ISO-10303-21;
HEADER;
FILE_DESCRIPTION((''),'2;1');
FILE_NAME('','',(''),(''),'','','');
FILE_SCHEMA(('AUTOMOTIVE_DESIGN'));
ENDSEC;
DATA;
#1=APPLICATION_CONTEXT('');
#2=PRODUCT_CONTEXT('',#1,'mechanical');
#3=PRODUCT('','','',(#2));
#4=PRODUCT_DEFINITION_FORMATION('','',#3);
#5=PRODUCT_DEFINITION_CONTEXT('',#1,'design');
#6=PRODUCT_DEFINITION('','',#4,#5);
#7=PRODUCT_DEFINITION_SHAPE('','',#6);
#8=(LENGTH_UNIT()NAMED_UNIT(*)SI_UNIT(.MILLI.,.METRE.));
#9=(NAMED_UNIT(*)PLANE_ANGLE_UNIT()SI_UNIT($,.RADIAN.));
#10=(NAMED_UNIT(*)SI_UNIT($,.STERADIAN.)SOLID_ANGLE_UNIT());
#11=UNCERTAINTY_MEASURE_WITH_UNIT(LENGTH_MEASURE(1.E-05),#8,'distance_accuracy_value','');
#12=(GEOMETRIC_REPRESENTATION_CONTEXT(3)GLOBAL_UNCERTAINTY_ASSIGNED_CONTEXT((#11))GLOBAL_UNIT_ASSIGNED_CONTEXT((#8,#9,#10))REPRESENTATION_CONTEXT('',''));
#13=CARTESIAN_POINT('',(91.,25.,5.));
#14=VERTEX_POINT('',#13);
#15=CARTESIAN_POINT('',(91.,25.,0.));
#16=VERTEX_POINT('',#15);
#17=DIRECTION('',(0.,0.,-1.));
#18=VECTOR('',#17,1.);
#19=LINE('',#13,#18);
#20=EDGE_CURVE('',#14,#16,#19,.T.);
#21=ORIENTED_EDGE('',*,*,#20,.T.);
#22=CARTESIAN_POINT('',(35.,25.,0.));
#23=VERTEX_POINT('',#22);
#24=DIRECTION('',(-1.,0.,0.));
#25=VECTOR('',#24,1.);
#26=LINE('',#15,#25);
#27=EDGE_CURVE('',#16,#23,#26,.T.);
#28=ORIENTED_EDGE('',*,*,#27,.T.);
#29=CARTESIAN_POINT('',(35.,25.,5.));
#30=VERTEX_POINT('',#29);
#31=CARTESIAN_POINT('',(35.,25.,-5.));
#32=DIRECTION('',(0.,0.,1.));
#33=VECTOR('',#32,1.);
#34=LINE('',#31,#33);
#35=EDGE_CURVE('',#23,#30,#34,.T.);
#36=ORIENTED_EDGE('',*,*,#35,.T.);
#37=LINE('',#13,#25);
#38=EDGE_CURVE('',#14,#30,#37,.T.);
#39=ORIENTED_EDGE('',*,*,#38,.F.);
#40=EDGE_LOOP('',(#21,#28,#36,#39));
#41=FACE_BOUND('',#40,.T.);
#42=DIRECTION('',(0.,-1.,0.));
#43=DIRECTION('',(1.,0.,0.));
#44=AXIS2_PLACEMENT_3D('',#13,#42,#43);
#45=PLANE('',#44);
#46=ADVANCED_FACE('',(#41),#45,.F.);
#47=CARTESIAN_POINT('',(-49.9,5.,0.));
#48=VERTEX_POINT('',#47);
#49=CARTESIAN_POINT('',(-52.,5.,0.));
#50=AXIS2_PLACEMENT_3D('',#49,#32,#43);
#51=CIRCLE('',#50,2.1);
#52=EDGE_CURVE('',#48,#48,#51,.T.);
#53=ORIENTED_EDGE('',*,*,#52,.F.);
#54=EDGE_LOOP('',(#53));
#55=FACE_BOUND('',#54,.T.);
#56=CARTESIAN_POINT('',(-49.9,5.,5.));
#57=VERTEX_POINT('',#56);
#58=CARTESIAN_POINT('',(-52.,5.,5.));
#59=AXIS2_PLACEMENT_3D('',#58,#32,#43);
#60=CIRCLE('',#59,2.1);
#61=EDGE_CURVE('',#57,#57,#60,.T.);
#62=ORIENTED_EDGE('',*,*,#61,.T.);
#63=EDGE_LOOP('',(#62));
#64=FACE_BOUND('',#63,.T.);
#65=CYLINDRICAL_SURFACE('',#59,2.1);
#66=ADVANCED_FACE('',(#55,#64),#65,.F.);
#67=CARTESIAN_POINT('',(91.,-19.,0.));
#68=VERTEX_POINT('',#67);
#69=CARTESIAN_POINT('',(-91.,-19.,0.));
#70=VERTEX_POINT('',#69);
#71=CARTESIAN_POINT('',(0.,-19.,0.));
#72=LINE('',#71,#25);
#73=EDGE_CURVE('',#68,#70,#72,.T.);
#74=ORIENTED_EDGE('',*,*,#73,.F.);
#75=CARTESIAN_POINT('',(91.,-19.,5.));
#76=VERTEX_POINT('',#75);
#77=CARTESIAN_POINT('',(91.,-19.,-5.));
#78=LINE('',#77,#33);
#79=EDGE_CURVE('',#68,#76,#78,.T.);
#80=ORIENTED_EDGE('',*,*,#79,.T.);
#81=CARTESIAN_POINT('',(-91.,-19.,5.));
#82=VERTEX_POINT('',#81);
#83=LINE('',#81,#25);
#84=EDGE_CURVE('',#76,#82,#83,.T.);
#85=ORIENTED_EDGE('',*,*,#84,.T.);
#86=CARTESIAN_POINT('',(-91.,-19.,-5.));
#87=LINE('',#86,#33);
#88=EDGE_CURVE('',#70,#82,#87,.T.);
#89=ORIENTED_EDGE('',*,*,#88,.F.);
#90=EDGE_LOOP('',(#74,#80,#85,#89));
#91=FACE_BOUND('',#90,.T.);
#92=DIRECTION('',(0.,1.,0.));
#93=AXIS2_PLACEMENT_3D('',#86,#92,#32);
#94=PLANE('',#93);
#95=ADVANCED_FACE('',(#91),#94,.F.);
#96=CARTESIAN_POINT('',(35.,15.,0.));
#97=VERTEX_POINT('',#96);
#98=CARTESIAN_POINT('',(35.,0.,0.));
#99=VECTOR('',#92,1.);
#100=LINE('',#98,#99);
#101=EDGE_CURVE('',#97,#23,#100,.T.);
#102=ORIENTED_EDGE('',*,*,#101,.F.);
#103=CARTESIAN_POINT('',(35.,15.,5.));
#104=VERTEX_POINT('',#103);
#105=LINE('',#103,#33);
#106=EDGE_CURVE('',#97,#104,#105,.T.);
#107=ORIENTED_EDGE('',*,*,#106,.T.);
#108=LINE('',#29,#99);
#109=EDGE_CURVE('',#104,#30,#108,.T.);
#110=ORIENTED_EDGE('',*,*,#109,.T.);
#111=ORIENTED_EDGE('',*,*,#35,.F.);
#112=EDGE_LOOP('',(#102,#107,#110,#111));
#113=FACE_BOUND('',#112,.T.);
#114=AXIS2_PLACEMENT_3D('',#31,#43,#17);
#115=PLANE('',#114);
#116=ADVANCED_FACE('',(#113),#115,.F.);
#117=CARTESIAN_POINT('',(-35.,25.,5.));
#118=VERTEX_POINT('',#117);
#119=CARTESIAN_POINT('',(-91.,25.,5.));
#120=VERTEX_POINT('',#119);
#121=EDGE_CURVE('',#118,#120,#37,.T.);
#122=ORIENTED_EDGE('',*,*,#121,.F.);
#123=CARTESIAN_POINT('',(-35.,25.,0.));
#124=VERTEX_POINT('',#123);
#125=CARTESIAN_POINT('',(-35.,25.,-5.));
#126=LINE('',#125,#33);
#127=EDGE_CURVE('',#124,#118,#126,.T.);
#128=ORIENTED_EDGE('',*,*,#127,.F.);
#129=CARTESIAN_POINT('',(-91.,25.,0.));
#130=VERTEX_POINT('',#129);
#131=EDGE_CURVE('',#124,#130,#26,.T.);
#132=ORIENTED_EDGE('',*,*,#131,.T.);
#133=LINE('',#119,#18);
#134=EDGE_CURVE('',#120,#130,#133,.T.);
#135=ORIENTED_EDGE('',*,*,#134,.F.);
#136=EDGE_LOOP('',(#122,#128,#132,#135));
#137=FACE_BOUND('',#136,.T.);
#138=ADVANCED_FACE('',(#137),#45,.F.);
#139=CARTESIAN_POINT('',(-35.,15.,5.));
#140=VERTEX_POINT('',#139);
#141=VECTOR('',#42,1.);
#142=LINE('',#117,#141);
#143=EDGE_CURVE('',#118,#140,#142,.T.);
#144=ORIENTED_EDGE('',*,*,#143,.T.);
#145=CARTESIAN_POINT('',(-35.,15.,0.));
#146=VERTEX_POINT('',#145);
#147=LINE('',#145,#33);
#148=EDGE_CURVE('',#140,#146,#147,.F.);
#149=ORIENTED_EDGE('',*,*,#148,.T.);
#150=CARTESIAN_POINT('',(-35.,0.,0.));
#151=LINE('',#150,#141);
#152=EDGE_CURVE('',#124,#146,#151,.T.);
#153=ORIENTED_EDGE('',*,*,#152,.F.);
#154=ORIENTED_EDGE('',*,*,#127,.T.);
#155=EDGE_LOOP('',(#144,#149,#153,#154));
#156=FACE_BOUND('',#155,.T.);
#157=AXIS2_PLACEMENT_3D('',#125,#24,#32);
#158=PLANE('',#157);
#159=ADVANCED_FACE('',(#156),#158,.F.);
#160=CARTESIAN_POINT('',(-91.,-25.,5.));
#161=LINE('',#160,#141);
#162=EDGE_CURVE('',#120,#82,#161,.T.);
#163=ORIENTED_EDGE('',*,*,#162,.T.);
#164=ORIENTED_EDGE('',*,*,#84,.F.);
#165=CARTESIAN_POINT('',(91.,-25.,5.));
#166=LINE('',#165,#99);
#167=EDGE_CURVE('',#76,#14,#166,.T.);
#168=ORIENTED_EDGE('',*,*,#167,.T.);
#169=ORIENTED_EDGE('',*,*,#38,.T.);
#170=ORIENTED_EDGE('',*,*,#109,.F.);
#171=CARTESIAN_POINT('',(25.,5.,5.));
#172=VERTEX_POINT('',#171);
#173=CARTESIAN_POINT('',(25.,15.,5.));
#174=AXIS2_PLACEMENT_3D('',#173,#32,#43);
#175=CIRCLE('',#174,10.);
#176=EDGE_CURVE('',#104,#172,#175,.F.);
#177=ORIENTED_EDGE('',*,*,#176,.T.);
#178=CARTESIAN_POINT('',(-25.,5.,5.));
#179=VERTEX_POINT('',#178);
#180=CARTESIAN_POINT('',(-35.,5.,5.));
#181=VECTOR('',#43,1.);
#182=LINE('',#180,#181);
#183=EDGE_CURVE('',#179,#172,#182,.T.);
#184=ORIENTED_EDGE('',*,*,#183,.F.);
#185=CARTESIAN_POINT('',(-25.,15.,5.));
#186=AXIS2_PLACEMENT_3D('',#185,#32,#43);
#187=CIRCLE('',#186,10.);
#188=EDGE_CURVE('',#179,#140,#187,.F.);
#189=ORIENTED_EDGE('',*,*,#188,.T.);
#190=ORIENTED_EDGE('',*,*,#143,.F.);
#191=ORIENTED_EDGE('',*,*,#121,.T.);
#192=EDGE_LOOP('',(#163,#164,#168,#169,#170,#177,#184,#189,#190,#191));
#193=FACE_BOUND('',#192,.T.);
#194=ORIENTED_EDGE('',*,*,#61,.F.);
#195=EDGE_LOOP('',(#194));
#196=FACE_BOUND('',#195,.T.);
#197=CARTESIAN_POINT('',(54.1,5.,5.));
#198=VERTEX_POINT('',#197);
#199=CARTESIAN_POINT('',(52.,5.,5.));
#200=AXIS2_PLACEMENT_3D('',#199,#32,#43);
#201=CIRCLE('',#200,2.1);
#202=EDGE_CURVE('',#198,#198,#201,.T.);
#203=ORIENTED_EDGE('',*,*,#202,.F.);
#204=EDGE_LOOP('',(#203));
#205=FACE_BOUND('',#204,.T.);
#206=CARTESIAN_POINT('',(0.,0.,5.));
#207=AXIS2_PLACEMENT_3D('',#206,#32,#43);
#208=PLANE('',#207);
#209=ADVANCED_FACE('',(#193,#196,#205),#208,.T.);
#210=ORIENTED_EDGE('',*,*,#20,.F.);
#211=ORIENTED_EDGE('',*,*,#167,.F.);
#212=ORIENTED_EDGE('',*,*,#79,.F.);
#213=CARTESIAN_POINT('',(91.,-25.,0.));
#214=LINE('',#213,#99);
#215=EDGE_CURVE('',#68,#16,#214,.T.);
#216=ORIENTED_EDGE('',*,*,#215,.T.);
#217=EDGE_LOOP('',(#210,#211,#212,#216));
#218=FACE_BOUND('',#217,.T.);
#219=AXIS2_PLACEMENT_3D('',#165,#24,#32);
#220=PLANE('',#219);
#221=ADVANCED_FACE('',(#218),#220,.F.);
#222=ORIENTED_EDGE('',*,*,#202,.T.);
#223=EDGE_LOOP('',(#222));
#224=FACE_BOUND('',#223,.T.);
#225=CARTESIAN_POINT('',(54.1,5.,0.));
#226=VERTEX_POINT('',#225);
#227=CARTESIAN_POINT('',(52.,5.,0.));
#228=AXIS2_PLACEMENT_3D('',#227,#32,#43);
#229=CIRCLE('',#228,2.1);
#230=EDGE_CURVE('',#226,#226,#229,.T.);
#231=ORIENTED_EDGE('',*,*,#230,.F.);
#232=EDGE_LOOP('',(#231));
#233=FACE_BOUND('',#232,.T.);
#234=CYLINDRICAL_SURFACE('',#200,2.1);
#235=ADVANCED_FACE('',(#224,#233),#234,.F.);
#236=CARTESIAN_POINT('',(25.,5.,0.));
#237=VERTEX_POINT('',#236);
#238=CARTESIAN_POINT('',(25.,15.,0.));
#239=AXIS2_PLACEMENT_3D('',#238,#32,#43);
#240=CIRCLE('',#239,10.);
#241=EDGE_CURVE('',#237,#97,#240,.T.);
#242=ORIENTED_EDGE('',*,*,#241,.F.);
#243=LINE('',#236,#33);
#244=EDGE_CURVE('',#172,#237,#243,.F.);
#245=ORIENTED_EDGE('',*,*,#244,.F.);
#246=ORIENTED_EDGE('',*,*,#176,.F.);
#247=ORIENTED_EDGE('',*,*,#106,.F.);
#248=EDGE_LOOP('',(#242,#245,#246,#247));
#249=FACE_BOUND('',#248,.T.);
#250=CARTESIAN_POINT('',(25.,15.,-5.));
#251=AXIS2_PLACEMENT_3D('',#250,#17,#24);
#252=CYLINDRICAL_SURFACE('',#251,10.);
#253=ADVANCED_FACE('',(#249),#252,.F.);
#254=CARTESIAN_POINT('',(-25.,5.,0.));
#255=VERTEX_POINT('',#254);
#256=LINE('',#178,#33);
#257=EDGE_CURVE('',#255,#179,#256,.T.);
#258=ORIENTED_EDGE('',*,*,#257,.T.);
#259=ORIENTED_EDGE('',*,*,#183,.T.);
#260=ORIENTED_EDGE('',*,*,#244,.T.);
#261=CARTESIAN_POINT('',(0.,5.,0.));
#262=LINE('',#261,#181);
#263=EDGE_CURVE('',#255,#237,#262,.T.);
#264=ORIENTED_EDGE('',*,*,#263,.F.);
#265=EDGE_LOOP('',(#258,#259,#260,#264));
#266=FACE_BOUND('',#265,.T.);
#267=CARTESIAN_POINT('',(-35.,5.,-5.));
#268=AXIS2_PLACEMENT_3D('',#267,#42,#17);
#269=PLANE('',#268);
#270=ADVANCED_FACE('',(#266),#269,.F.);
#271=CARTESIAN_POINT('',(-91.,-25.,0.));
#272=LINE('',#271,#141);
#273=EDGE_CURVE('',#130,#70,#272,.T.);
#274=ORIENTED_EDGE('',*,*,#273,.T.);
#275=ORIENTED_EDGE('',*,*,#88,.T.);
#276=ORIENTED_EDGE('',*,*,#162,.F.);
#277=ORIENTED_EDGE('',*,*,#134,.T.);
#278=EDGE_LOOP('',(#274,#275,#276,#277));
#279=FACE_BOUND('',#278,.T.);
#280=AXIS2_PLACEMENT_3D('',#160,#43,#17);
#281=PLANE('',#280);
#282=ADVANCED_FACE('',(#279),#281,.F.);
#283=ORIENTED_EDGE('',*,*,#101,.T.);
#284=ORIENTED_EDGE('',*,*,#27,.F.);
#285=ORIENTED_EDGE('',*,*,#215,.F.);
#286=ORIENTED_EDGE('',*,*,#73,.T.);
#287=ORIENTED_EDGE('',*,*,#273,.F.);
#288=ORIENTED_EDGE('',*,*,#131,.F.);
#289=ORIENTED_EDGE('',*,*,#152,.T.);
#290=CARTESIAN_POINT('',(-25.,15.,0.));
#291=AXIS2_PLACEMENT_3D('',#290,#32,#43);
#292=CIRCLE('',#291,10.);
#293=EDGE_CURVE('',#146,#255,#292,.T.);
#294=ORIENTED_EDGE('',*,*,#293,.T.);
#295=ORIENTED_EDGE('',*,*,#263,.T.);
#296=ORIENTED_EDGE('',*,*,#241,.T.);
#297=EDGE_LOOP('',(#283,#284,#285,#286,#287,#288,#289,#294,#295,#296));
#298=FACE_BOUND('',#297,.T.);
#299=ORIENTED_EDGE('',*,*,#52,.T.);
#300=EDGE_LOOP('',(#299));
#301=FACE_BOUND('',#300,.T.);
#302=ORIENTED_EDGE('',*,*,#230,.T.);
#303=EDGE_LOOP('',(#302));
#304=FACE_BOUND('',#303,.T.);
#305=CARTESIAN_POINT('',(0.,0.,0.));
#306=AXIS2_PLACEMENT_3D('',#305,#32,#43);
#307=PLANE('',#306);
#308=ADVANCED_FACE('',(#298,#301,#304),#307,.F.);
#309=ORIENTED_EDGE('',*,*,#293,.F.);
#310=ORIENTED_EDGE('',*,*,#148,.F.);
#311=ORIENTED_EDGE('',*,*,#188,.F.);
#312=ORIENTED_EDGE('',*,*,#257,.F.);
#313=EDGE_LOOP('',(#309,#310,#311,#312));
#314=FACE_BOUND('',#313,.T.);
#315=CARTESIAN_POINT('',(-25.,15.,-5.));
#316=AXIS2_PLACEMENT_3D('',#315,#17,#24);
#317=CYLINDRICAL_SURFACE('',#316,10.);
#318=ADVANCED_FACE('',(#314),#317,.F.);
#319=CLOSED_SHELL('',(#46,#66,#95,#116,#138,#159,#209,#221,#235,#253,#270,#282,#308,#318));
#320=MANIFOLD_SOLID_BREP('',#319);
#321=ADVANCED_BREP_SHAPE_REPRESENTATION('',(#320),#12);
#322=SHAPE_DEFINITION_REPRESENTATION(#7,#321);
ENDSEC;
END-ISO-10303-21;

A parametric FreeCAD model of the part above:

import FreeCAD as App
import Part
import Sketcher

V = App.Vector
Q = App.Units.Quantity


def edges_at(feature, points):
    """Names of the edges that pass closest to the given points."""
    edges = feature.Shape.Edges
    near = lambda p: min(range(len(edges)), key=lambda i: edges[i].distToShape(Part.Vertex(*p))[0])
    return sorted({f"Edge{near(p) + 1}" for p in points})


def add_polygon(sketch, points):
    """Adds a closed chain of lines whose ends are joined by coincident constraints."""
    first, n = sketch.GeometryCount, len(points)
    for a, b in zip(points, points[1:] + points[:1]):
        sketch.addGeometry(Part.LineSegment(App.Vector(*a, 0), App.Vector(*b, 0)), False)
    for i in range(n):
        sketch.addConstraint(Sketcher.Constraint("Coincident", first + i, 2, first + (i + 1) % n, 1))

doc = App.newDocument("Part")
body = doc.addObject("PartDesign::Body", "Body")

# Sketch on XY plane
sketch1 = body.newObject("Sketcher::SketchObject", "Sketch")
sketch1.AttachmentSupport = (doc.getObject("XY_Plane"), [""])
sketch1.MapMode = "FlatFace"
add_polygon(sketch1, [(-91, 25), (-91, -25), (91, -25), (91, 25)])  # lines 0-3
sketch1.addConstraint([
    Sketcher.Constraint("Vertical", 0),
    Sketcher.Constraint("Horizontal", 1),
    Sketcher.Constraint("Vertical", 2),
    Sketcher.Constraint("Horizontal", 3),
    Sketcher.Constraint("Symmetric", 0, 2, 2, 2, -1, 1),
    Sketcher.Constraint("DistanceX", 1, 1, 1, 2, Q("182 mm")),
    Sketcher.Constraint("DistanceY", 0, 2, 0, 1, Q("50 mm")),
])
pad1 = body.newObject("PartDesign::Pad", "Pad")
pad1.Profile = sketch1
pad1.Length = 5

# Sketch on XY plane
sketch2 = body.newObject("Sketcher::SketchObject", "Sketch001")
sketch2.AttachmentSupport = (doc.getObject("XY_Plane"), [""])
sketch2.MapMode = "FlatFace"
sketch2.AttachmentOffset = App.Placement(V(0, 0, 5), App.Rotation())
sketch2.addGeometry([
    Part.Circle(V(52, 5, 0), V(0, 0, 1), 2.1),
    Part.Circle(V(-52, 5, 0), V(0, 0, 1), 2.1),
], False)
sketch2.addConstraint([
    Sketcher.Constraint("Equal", 0, 1),
    Sketcher.Constraint("Symmetric", 0, 3, 1, 3, -2),
    Sketcher.Constraint("Diameter", 0, Q("4.2 mm")),
    Sketcher.Constraint("DistanceX", -1, 1, 0, 3, Q("52 mm")),
    Sketcher.Constraint("DistanceY", -1, 1, 0, 3, Q("5 mm")),
])
doc.recompute()
hole = body.newObject("PartDesign::Hole", "Hole")
hole.Profile = sketch2
hole.ThreadType = "None"
hole.Diameter = 4.2
hole.DepthType = "Dimension"
hole.Depth = 14
hole.DrillPoint = "Angled"
hole.DrillPointAngle = 118

# Sketch on XY plane
sketch3 = body.newObject("Sketcher::SketchObject", "Sketch002")
sketch3.AttachmentSupport = (doc.getObject("XY_Plane"), [""])
sketch3.MapMode = "FlatFace"
sketch3.AttachmentOffset = App.Placement(V(0, 0, 5), App.Rotation())
add_polygon(sketch3, [(-35, 25), (-35, 5), (35, 5), (35, 25)])  # lines 0-3
add_polygon(sketch3, [(-91, -19), (-91, -25), (91, -25), (91, -19)])  # lines 4-7
sketch3.addConstraint([
    Sketcher.Constraint("Vertical", 0),
    Sketcher.Constraint("Horizontal", 1),
    Sketcher.Constraint("Vertical", 2),
    Sketcher.Constraint("Horizontal", 3),
    Sketcher.Constraint("Vertical", 4),
    Sketcher.Constraint("Horizontal", 5),
    Sketcher.Constraint("Vertical", 6),
    Sketcher.Constraint("Horizontal", 7),
    Sketcher.Constraint("DistanceX", 1, 1, 1, 2, Q("70 mm")),
    Sketcher.Constraint("DistanceX", 5, 1, 5, 2, Q("182 mm")),
    Sketcher.Constraint("DistanceY", 0, 2, 0, 1, Q("20 mm")),
    Sketcher.Constraint("DistanceY", 4, 2, 4, 1, Q("6 mm")),
    Sketcher.Constraint("DistanceX", 0, 2, -1, 1, Q("35 mm")),
    Sketcher.Constraint("DistanceY", -1, 1, 0, 2, Q("5 mm")),
    Sketcher.Constraint("DistanceX", 4, 2, -1, 1, Q("91 mm")),
    Sketcher.Constraint("DistanceY", 4, 2, -1, 1, Q("25 mm")),
])
pocket1 = body.newObject("PartDesign::Pocket", "Pocket")
pocket1.Profile = sketch3
pocket1.Length = 10
doc.recompute()

fillet = body.newObject("PartDesign::Fillet", "Fillet")
fillet.Base = (pocket1, edges_at(pocket1, [(-35, 5, 2.5), (35, 5, 2.5)]))
fillet.Radius = 10

doc.recompute()
